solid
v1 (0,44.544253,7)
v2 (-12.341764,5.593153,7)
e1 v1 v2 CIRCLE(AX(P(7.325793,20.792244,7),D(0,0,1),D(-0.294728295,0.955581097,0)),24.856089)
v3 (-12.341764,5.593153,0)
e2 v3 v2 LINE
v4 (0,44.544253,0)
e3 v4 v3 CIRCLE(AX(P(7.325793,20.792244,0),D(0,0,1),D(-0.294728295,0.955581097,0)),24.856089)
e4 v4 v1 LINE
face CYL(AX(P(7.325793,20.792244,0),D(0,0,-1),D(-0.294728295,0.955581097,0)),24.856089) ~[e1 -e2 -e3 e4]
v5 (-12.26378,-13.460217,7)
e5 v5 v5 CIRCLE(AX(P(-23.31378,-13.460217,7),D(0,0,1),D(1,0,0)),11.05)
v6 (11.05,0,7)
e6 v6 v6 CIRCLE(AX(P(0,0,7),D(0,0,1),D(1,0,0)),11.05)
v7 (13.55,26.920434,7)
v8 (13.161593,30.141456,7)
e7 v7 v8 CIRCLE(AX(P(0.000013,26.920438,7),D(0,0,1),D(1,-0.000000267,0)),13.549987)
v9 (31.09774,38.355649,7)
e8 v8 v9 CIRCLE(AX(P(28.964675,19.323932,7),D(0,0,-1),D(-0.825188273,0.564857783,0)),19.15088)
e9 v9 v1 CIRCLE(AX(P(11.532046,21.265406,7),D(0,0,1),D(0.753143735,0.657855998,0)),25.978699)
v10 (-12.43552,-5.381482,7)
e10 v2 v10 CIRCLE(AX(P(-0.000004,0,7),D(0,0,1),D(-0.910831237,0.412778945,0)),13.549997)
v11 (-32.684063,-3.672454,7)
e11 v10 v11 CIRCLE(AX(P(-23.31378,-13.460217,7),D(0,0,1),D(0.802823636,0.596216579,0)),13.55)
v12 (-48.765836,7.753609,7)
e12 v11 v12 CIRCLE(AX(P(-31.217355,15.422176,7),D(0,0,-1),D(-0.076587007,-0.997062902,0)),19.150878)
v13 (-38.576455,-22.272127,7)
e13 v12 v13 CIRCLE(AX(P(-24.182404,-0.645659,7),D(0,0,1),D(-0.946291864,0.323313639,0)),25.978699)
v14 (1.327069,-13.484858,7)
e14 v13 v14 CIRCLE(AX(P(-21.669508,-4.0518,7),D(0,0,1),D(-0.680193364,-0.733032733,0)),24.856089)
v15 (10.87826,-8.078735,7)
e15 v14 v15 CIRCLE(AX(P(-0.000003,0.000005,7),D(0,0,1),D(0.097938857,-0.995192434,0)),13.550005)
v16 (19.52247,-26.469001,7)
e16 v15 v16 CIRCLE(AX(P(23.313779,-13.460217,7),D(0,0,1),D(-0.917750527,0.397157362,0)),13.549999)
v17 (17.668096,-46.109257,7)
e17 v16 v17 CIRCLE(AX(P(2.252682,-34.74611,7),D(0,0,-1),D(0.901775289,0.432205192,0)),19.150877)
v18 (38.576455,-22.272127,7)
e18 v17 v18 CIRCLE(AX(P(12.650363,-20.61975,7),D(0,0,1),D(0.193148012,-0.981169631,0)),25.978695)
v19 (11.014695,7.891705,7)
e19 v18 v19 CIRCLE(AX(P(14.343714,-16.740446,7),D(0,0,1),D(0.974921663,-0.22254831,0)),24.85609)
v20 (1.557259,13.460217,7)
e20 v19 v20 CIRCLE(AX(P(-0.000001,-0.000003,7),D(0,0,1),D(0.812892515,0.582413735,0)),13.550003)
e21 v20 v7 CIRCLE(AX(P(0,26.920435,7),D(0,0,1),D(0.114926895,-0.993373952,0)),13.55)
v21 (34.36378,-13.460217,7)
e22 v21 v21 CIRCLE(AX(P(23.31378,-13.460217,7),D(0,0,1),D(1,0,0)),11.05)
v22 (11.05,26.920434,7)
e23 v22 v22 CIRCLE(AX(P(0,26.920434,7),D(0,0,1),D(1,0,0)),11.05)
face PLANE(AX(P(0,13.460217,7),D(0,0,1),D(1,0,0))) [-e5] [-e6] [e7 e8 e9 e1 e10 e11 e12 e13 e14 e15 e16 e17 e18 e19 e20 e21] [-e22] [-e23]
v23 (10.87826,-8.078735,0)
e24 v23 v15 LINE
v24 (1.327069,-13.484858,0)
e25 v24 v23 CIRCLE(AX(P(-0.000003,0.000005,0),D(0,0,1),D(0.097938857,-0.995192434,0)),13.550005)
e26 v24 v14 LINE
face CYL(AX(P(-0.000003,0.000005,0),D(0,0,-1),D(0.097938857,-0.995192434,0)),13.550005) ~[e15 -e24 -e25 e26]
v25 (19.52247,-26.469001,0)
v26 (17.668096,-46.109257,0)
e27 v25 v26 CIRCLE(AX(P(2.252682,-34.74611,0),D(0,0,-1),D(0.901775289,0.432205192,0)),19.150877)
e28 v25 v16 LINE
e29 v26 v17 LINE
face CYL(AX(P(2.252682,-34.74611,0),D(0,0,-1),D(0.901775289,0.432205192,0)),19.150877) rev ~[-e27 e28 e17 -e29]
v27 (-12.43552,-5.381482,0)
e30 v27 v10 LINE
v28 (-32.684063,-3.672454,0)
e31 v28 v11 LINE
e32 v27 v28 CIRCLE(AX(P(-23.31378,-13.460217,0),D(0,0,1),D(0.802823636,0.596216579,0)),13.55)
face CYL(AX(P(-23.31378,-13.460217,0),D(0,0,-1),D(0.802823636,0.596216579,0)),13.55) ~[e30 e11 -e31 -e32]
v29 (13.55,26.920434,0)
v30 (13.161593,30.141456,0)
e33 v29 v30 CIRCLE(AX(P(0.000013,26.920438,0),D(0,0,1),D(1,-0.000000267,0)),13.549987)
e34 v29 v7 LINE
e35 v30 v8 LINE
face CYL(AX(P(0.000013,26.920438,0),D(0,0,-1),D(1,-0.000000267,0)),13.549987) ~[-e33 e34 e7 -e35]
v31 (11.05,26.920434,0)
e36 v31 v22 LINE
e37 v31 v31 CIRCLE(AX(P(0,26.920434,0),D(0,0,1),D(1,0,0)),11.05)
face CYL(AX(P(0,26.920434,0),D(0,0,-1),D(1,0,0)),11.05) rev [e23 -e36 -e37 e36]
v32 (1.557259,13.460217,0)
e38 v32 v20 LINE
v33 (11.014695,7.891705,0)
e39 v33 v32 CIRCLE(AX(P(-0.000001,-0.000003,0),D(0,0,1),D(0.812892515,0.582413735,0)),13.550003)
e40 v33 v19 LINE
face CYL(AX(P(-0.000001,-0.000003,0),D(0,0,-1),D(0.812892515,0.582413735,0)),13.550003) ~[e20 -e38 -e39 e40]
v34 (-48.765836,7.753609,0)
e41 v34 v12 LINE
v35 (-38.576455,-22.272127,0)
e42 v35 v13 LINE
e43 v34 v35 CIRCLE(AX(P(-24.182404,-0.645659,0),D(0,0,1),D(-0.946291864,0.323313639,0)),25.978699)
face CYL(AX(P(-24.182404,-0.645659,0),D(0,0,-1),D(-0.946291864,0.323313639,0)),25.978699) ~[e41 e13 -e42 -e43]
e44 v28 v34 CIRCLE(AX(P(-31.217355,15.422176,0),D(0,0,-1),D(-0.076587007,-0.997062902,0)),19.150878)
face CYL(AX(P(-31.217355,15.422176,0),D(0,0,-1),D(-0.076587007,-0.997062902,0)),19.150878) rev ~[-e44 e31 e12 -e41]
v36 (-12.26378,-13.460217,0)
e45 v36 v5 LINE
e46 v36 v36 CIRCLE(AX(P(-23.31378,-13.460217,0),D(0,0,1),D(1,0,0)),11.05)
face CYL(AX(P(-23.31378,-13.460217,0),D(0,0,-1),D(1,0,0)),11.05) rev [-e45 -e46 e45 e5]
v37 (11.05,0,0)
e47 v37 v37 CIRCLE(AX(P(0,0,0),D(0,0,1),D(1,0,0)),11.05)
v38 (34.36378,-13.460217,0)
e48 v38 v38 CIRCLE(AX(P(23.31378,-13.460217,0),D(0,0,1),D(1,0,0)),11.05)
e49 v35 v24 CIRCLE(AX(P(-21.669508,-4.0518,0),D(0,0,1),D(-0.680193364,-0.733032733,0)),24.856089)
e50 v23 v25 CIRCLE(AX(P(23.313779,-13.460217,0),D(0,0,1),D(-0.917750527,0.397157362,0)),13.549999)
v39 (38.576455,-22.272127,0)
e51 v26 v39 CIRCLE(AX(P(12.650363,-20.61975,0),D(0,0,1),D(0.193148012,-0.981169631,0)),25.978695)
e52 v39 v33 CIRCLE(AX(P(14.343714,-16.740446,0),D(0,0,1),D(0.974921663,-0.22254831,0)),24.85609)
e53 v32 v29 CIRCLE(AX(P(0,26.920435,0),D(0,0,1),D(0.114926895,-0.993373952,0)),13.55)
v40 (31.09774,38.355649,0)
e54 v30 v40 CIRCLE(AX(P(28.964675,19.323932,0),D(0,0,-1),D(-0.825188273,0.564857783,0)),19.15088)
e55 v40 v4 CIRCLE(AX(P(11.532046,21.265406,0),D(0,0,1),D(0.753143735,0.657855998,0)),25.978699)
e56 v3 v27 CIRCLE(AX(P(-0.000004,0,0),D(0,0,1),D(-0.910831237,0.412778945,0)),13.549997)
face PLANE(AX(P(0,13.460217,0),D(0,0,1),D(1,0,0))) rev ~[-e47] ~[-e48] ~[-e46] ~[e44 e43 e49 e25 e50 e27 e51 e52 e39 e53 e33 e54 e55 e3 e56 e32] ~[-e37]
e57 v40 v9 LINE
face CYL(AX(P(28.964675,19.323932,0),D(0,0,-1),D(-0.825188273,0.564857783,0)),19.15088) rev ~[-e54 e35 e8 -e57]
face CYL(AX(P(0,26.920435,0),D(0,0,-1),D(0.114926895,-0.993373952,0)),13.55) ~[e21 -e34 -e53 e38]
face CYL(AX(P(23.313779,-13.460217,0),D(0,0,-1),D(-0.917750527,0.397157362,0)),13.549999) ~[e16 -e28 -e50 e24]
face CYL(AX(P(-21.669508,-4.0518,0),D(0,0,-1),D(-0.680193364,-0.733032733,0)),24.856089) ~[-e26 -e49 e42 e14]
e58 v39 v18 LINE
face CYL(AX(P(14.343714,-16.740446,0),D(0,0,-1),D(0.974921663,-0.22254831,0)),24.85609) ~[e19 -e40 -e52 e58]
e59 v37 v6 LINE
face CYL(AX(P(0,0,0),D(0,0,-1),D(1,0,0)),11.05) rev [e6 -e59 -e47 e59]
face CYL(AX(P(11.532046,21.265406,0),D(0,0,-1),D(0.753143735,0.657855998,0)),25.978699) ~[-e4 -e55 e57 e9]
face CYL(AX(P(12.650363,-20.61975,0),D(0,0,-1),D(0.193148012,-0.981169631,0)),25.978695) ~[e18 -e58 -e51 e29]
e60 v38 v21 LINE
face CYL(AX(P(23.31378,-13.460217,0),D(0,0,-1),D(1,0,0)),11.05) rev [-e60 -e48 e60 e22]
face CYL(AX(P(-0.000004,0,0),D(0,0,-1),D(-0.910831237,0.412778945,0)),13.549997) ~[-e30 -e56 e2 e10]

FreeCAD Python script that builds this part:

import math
import FreeCAD as App
import Part
import Sketcher
from FreeCAD import Vector

doc = App.newDocument("Part")
body = doc.addObject("PartDesign::Body", "Body")

# Sketch on XY plane
sketch1 = body.newObject("Sketcher::SketchObject", "Sketch")
sketch1.AttachmentSupport = (doc.getObject("XY_Plane"), [""])
sketch1.MapMode = "FlatFace"
sketch1.addGeometry([
    Part.ArcOfCircle(Part.Circle(Vector(-0.000004, 0, 0), Vector(0, 0, 1), 13.549997), math.radians(155.620476), math.radians(203.400595)),  # 0
    Part.ArcOfCircle(Part.Circle(Vector(-23.31378, -13.460217, 0), Vector(0, 0, 1), 13.55), math.radians(36.599408), math.radians(133.751645)),  # 1
    Part.ArcOfCircle(Part.Circle(Vector(-31.217355, 15.422176, 0), Vector(0, 0, 1), 19.150878), math.radians(-156.395), math.radians(-94.392413)),  # 2
    Part.ArcOfCircle(Part.Circle(Vector(-24.182404, -0.645659, 0), Vector(0, 0, 1), 25.978699), math.radians(161.136561), math.radians(236.35323)),  # 3
    Part.ArcOfCircle(Part.Circle(Vector(-21.669508, -4.0518, 0), Vector(0, 0, 1), 24.856089), math.radians(-132.858755), math.radians(-22.303143)),  # 4
    Part.ArcOfCircle(Part.Circle(Vector(-0.000003, 0.000005, 0), Vector(0, 0, 1), 13.550005), math.radians(-84.379507), math.radians(-36.599418)),  # 5
    Part.ArcOfCircle(Part.Circle(Vector(23.313779, -13.460217, 0), Vector(0, 0, 1), 13.549999), math.radians(156.599409), math.radians(253.751647)),  # 6
    Part.ArcOfCircle(Part.Circle(Vector(2.252682, -34.74611, 0), Vector(0, 0, 1), 19.150877), math.radians(-36.395001), math.radians(25.607589)),  # 7
    Part.ArcOfCircle(Part.Circle(Vector(12.650363, -20.61975, 0), Vector(0, 0, 1), 25.978695), math.radians(-78.863444), math.radians(-3.646764)),  # 8
    Part.ArcOfCircle(Part.Circle(Vector(14.343714, -16.740446, 0), Vector(0, 0, 1), 24.85609), math.radians(-12.858752), math.radians(97.696851)),  # 9
    Part.ArcOfCircle(Part.Circle(Vector(-0.000001, -0.000003, 0), Vector(0, 0, 1), 13.550003), math.radians(35.620492), math.radians(83.400592)),  # 10
    Part.ArcOfCircle(Part.Circle(Vector(0, 26.920435, 0), Vector(0, 0, 1), 13.55), math.radians(-83.400591), math.radians(-0.000002)),  # 11
    Part.ArcOfCircle(Part.Circle(Vector(0.000013, 26.920438, 0), Vector(0, 0, 1), 13.549987), math.radians(-0.000015), math.radians(13.751644)),  # 12
    Part.ArcOfCircle(Part.Circle(Vector(28.964675, 19.323932, 0), Vector(0, 0, 1), 19.15088), math.radians(83.605006), math.radians(145.607584)),  # 13
    Part.ArcOfCircle(Part.Circle(Vector(11.532046, 21.265406, 0), Vector(0, 0, 1), 25.978699), math.radians(41.136563), math.radians(116.353232)),  # 14
    Part.ArcOfCircle(Part.Circle(Vector(7.325793, 20.792244, 0), Vector(0, 0, 1), 24.856089), math.radians(107.141245), math.radians(217.696856)),  # 15
    Part.Circle(Vector(-23.31378, -13.460217, 0), Vector(0, 0, 1), 11.05),  # 16
    Part.Circle(Vector(23.31378, -13.460217, 0), Vector(0, 0, 1), 11.05),  # 17
    Part.Circle(Vector(0, 0, 0), Vector(0, 0, 1), 11.05),  # 18
    Part.Circle(Vector(0, 26.920434, 0), Vector(0, 0, 1), 11.05),  # 19
], False)
sketch1.addConstraint([
    Sketcher.Constraint("Coincident", 0, 2, 1, 1),
    Sketcher.Constraint("Coincident", 1, 2, 2, 2),
    Sketcher.Constraint("Coincident", 2, 1, 3, 1),
    Sketcher.Constraint("Coincident", 3, 2, 4, 1),
    Sketcher.Constraint("Coincident", 4, 2, 5, 1),
    Sketcher.Constraint("Coincident", 5, 2, 6, 1),
    Sketcher.Constraint("Coincident", 6, 2, 7, 2),
    Sketcher.Constraint("Coincident", 7, 1, 8, 1),
    Sketcher.Constraint("Coincident", 8, 2, 9, 1),
    Sketcher.Constraint("Coincident", 9, 2, 10, 1),
    Sketcher.Constraint("Coincident", 10, 2, 11, 1),
    Sketcher.Constraint("Coincident", 11, 2, 12, 1),
    Sketcher.Constraint("Coincident", 12, 2, 13, 2),
    Sketcher.Constraint("Coincident", 13, 1, 14, 1),
    Sketcher.Constraint("Coincident", 14, 2, 15, 1),
    Sketcher.Constraint("Coincident", 15, 2, 0, 1),
    Sketcher.Constraint("Coincident", 0, 3, -1, 1),
    Sketcher.Constraint("Coincident", 5, 3, -1, 1),
    Sketcher.Constraint("Coincident", 10, 3, -1, 1),
    Sketcher.Constraint("Coincident", 18, 3, -1, 1),
    Sketcher.Constraint("Coincident", 16, 3, 1, 3),
    Sketcher.Constraint("Coincident", 17, 3, 6, 3),
    Sketcher.Constraint("Coincident", 19, 3, 11, 3),
    Sketcher.Constraint("PointOnObject", 11, 3, -2),
    Sketcher.Constraint("PointOnObject", 14, 2, -2),
    Sketcher.Constraint("Diameter", 16, 22.1),
    Sketcher.Constraint("Diameter", 17, 22.1),
    Sketcher.Constraint("Diameter", 18, 22.1),
    Sketcher.Constraint("Diameter", 19, 22.1),
    Sketcher.Constraint("Radius", 1, 13.55),
    Sketcher.Constraint("Radius", 6, 13.549999),
    Sketcher.Constraint("Radius", 11, 13.55),
    Sketcher.Constraint("Radius", 3, 25.978699),
    Sketcher.Constraint("Radius", 14, 25.978699),
    Sketcher.Constraint("Radius", 4, 24.856089),
    Sketcher.Constraint("Radius", 9, 24.85609),
    Sketcher.Constraint("Radius", 13, 19.15088),
    Sketcher.Constraint("Radius", 15, 24.856089),
    Sketcher.Constraint("DistanceY", 6, 2, -1, 1, 26.469001),
    Sketcher.Constraint("Radius", 0, 13.549997),
    Sketcher.Constraint("Radius", 2, 19.150878),
    Sketcher.Constraint("Radius", 5, 13.550005),
    Sketcher.Constraint("Radius", 7, 19.150877),
    Sketcher.Constraint("Radius", 8, 25.978695),
    Sketcher.Constraint("Radius", 10, 13.550003),
    Sketcher.Constraint("Radius", 12, 13.549987),
    Sketcher.Constraint("DistanceY", 4, 3, -1, 1, 4.0518),
    Sketcher.Constraint("DistanceX", 3, 3, 0, 3, 24.1824),
    Sketcher.Constraint("DistanceY", 5, 3, 14, 3, 21.265402),
    Sketcher.Constraint("DistanceY", 9, 2, 14, 3, 13.373701),
    Sketcher.Constraint("DistanceX", 15, 3, 12, 2, 5.8358),
    Sketcher.Constraint("DistanceX", 1, 3, -1, 1, 23.31378),
    Sketcher.Constraint("DistanceY", 3, 3, -1, 1, 0.645659),
    Sketcher.Constraint("DistanceX", 4, 3, -1, 1, 21.669508),
    Sketcher.Constraint("DistanceX", -1, 1, 6, 3, 23.313779),
    Sketcher.Constraint("DistanceX", -1, 1, 7, 3, 2.252682),
    Sketcher.Constraint("DistanceY", 7, 3, -1, 1, 34.74611),
    Sketcher.Constraint("DistanceY", 8, 3, -1, 1, 20.61975),
    Sketcher.Constraint("DistanceX", 0, 2, -1, 1, 12.43552),
    Sketcher.Constraint("DistanceY", -1, 1, 2, 1, 7.753609),
    Sketcher.Constraint("DistanceX", -1, 1, 10, 2, 1.557259),
    Sketcher.Constraint("DistanceX", -1, 1, 13, 1, 31.09774),
    Sketcher.Constraint("DistanceY", -1, 1, 13, 1, 38.355649),
    Sketcher.Constraint("DistanceX", 2, 3, 0, 3, 31.217351),
    Sketcher.Constraint("DistanceX", 7, 3, 8, 3, 10.397681),
    Sketcher.Constraint("DistanceX", 8, 3, 9, 3, 1.693351),
    Sketcher.Constraint("DistanceY", 10, 3, 12, 3, 26.92044),
    Sketcher.Constraint("DistanceX", 12, 3, 13, 3, 28.964661),
    Sketcher.Constraint("DistanceY", 15, 3, 11, 2, 6.12819),
])
pad1 = body.newObject("PartDesign::Pad", "Pad")
pad1.Profile = sketch1
pad1.Length = 7

doc.recompute()
